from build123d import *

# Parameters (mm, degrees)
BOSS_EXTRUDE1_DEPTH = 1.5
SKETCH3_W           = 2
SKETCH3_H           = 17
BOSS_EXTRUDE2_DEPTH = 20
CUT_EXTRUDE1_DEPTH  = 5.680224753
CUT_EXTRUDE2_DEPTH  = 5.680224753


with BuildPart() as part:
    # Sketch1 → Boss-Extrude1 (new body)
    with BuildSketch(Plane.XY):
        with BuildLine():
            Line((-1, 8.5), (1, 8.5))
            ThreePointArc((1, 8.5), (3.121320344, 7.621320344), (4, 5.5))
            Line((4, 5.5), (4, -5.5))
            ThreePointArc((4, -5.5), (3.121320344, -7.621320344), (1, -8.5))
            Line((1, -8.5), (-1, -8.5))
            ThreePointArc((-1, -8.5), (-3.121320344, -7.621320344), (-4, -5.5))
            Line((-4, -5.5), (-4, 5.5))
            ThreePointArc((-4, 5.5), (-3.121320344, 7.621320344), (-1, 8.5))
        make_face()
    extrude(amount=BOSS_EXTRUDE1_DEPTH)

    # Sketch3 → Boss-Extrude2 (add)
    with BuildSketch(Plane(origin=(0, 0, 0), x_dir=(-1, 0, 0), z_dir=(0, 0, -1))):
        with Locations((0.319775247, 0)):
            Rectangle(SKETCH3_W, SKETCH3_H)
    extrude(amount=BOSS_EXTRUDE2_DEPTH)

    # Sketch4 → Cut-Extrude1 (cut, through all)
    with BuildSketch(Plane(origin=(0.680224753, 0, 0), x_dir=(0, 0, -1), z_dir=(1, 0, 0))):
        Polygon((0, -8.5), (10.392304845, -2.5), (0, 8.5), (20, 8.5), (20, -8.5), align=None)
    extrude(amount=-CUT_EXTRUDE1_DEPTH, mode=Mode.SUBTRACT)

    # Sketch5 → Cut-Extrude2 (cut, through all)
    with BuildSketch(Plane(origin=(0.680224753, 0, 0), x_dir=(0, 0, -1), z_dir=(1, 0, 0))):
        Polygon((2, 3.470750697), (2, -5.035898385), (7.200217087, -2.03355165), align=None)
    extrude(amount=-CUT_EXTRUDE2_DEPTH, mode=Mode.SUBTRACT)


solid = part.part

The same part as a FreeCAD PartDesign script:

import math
import FreeCAD as App
import Part
import Sketcher
from FreeCAD import Vector
Q = App.Units.Quantity

doc = App.newDocument("Part")
params = doc.addObject("Spreadsheet::Sheet", "Params")
for row, (alias, value) in enumerate([
    ("sketch1_radius", "3 mm"),
    ("sketch1_width", "2 mm"),
    ("sketch1_height", "11 mm"),
    ("pad1_length", "1.5 mm"),
    ("sketch2_width", "2 mm"),
    ("sketch2_height", "17 mm"),
    ("pad2_length", "20 mm"),
    ("sketch3_width", "17 mm"),
    ("sketch3_height", "20 mm"),
    ("sketch3_length", "12 mm"),
], start=1):
    params.set(f"A{row}", alias)
    params.set(f"B{row}", "=" + value)
    params.setAlias(f"B{row}", alias)

body = doc.addObject("PartDesign::Body", "Body")

# Sketch on XY plane
sketch1 = doc.addObject("Sketcher::SketchObject", "Sketch")
body.addObject(sketch1)
sketch1.AttachmentSupport = (doc.XY_Plane, [""])
sketch1.MapMode = "FlatFace"
sketch1.addGeometry(Part.LineSegment(Vector(1, 8.5, 0), Vector(-1, 8.5, 0)), False)
sketch1.addGeometry(Part.ArcOfCircle(Part.Circle(Vector(-1, 5.5, 0), Vector(0, 0, 1), 3), math.radians(90), math.radians(180)), False)
sketch1.addGeometry(Part.LineSegment(Vector(-4, 5.5, 0), Vector(-4, -5.5, 0)), False)
sketch1.addGeometry(Part.ArcOfCircle(Part.Circle(Vector(-1, -5.5, 0), Vector(0, 0, 1), 3), math.radians(180), math.radians(270)), False)
sketch1.addGeometry(Part.LineSegment(Vector(-1, -8.5, 0), Vector(1, -8.5, 0)), False)
sketch1.addGeometry(Part.ArcOfCircle(Part.Circle(Vector(1, -5.5, 0), Vector(0, 0, 1), 3), math.radians(-90), math.radians(0)), False)
sketch1.addGeometry(Part.LineSegment(Vector(4, -5.5, 0), Vector(4, 5.5, 0)), False)
sketch1.addGeometry(Part.ArcOfCircle(Part.Circle(Vector(1, 5.5, 0), Vector(0, 0, 1), 3), math.radians(0), math.radians(90)), False)
sketch1.addConstraint(Sketcher.Constraint("Tangent", 0, 2, 1, 1))
sketch1.addConstraint(Sketcher.Constraint("Tangent", 1, 2, 2, 1))
sketch1.addConstraint(Sketcher.Constraint("Tangent", 2, 2, 3, 1))
sketch1.addConstraint(Sketcher.Constraint("Tangent", 3, 2, 4, 1))
sketch1.addConstraint(Sketcher.Constraint("Tangent", 4, 2, 5, 1))
sketch1.addConstraint(Sketcher.Constraint("Tangent", 5, 2, 6, 1))
sketch1.addConstraint(Sketcher.Constraint("Tangent", 6, 2, 7, 1))
sketch1.addConstraint(Sketcher.Constraint("Tangent", 7, 2, 0, 1))
sketch1.addConstraint(Sketcher.Constraint("Horizontal", 0))
sketch1.addConstraint(Sketcher.Constraint("Vertical", 2))
sketch1.addConstraint(Sketcher.Constraint("Horizontal", 4))
sketch1.addConstraint(Sketcher.Constraint("Vertical", 6))
sketch1.addConstraint(Sketcher.Constraint("Equal", 1, 3))
sketch1.addConstraint(Sketcher.Constraint("Equal", 3, 5))
sketch1.addConstraint(Sketcher.Constraint("Equal", 5, 7))
sketch1.addConstraint(Sketcher.Constraint("Symmetric", 1, 3, 5, 3, -1, 1))
sketch1.addConstraint(Sketcher.Constraint("Radius", 1, 3.0))
sketch1.addConstraint(Sketcher.Constraint("DistanceX", 0, 2, 0, 1, 2.0))
sketch1.addConstraint(Sketcher.Constraint("DistanceY", 2, 2, 2, 1, 11.0))
sketch1.setExpression("Constraints[16]", "Params.sketch1_radius")
sketch1.setExpression("Constraints[17]", "Params.sketch1_width")
sketch1.setExpression("Constraints[18]", "Params.sketch1_height")
pad1 = doc.addObject("PartDesign::Pad", "Pad")
body.addObject(pad1)
pad1.Profile = sketch1
pad1.setExpression("Length", "Params.pad1_length")

# Sketch on XY plane
sketch2 = doc.addObject("Sketcher::SketchObject", "Sketch001")
body.addObject(sketch2)
sketch2.AttachmentSupport = (doc.XY_Plane, [""])
sketch2.MapMode = "FlatFace"
sketch2.addGeometry(Part.LineSegment(Vector(0.7, 8.5, 0), Vector(0.7, -8.5, 0)), False)
sketch2.addGeometry(Part.LineSegment(Vector(0.7, -8.5, 0), Vector(-1.3, -8.5, 0)), False)
sketch2.addGeometry(Part.LineSegment(Vector(-1.3, -8.5, 0), Vector(-1.3, 8.5, 0)), False)
sketch2.addGeometry(Part.LineSegment(Vector(-1.3, 8.5, 0), Vector(0.7, 8.5, 0)), False)
sketch2.addConstraint(Sketcher.Constraint("Coincident", 0, 2, 1, 1))
sketch2.addConstraint(Sketcher.Constraint("Coincident", 1, 2, 2, 1))
sketch2.addConstraint(Sketcher.Constraint("Coincident", 2, 2, 3, 1))
sketch2.addConstraint(Sketcher.Constraint("Coincident", 3, 2, 0, 1))
sketch2.addConstraint(Sketcher.Constraint("Vertical", 0))
sketch2.addConstraint(Sketcher.Constraint("Horizontal", 1))
sketch2.addConstraint(Sketcher.Constraint("Vertical", 2))
sketch2.addConstraint(Sketcher.Constraint("Horizontal", 3))
sketch2.addConstraint(Sketcher.Constraint("DistanceX", 1, 2, 1, 1, 2.0))
sketch2.addConstraint(Sketcher.Constraint("DistanceY", 0, 2, 0, 1, 17.0))
sketch2.addConstraint(Sketcher.Constraint("DistanceY", 0, 2, -1, 1, 8.5))
sketch2.addConstraint(Sketcher.Constraint("DistanceX", -1, 1, 0, 2, 0.680225))
sketch2.setExpression("Constraints[8]", "Params.sketch2_width")
sketch2.setExpression("Constraints[9]", "Params.sketch2_height")
pad2 = doc.addObject("PartDesign::Pad", "Pad001")
body.addObject(pad2)
pad2.Profile = sketch2
pad2.setExpression("Length", "Params.pad2_length")
pad2.Reversed = True

# Sketch on YZ plane
sketch3 = doc.addObject("Sketcher::SketchObject", "Sketch002")
body.addObject(sketch3)
sketch3.AttachmentSupport = (doc.YZ_Plane, [""])
sketch3.MapMode = "FlatFace"
sketch3.AttachmentOffset = App.Placement(Vector(0, 0, 0.680225), App.Rotation())
sketch3.addGeometry(Part.LineSegment(Vector(-2, -10, 0), Vector(-8, 0, 0)), False)
sketch3.addGeometry(Part.LineSegment(Vector(-8, 0, 0), Vector(-8, -20, 0)), False)
sketch3.addGeometry(Part.LineSegment(Vector(-8, -20, 0), Vector(8, -20, 0)), False)
sketch3.addGeometry(Part.LineSegment(Vector(8, -20, 0), Vector(8, 0, 0)), False)
sketch3.addGeometry(Part.LineSegment(Vector(8, 0, 0), Vector(-2, -10, 0)), False)
sketch3.addConstraint(Sketcher.Constraint("Coincident", 0, 2, 1, 1))
sketch3.addConstraint(Sketcher.Constraint("Coincident", 1, 2, 2, 1))
sketch3.addConstraint(Sketcher.Constraint("Coincident", 2, 2, 3, 1))
sketch3.addConstraint(Sketcher.Constraint("Coincident", 3, 2, 4, 1))
sketch3.addConstraint(Sketcher.Constraint("Coincident", 4, 2, 0, 1))
sketch3.addConstraint(Sketcher.Constraint("Vertical", 1))
sketch3.addConstraint(Sketcher.Constraint("Horizontal", 2))
sketch3.addConstraint(Sketcher.Constraint("Vertical", 3))
sketch3.addConstraint(Sketcher.Constraint("Symmetric", 0, 2, 3, 2, -1, 1))
sketch3.addConstraint(Sketcher.Constraint("PointOnObject", 0, 2, -1))
sketch3.addConstraint(Sketcher.Constraint("DistanceX", 2, 1, 2, 2, 17.0))
sketch3.addConstraint(Sketcher.Constraint("DistanceY", 1, 2, 1, 1, 20.0))
sketch3.addConstraint(Sketcher.Constraint("Angle", 0, Q("120 deg")))
sketch3.addConstraint(Sketcher.Constraint("Distance", 0, 12.0))
sketch3.setExpression("Constraints[10]", "Params.sketch3_width")
sketch3.setExpression("Constraints[11]", "Params.sketch3_height")
sketch3.setExpression("Constraints[13]", "Params.sketch3_length")
pocket1 = doc.addObject("PartDesign::Pocket", "Pocket")
body.addObject(pocket1)
pocket1.Profile = sketch3
pocket1.Type = "ThroughAll"

# Sketch on YZ plane
sketch4 = doc.addObject("Sketcher::SketchObject", "Sketch003")
body.addObject(sketch4)
sketch4.AttachmentSupport = (doc.YZ_Plane, [""])
sketch4.MapMode = "FlatFace"
sketch4.AttachmentOffset = App.Placement(Vector(0, 0, 0.680225), App.Rotation())
sketch4.addGeometry(Part.LineSegment(Vector(3, -2, 0), Vector(-5, -2, 0)), False)
sketch4.addGeometry(Part.LineSegment(Vector(-5, -2, 0), Vector(-2, -7, 0)), False)
sketch4.addGeometry(Part.LineSegment(Vector(-2, -7, 0), Vector(3, -2, 0)), False)
sketch4.addConstraint(Sketcher.Constraint("Coincident", 0, 2, 1, 1))
sketch4.addConstraint(Sketcher.Constraint("Coincident", 1, 2, 2, 1))
sketch4.addConstraint(Sketcher.Constraint("Coincident", 2, 2, 0, 1))
sketch4.addConstraint(Sketcher.Constraint("Horizontal", 0))
sketch4.addConstraint(Sketcher.Constraint("Angle", 1, Q("-60 deg")))
sketch4.addConstraint(Sketcher.Constraint("DistanceY", 0, 2, -1, 1, 2.0))
sketch4.addConstraint(Sketcher.Constraint("DistanceX", 0, 2, 0, 1, 8.506649))
sketch4.addConstraint(Sketcher.Constraint("DistanceX", 0, 2, -1, 1, 5.035898))
sketch4.addConstraint(Sketcher.Constraint("Distance", 2, 7.572292))
pocket2 = doc.addObject("PartDesign::Pocket", "Pocket001")
body.addObject(pocket2)
pocket2.Profile = sketch4
pocket2.Type = "ThroughAll"

doc.recompute()
